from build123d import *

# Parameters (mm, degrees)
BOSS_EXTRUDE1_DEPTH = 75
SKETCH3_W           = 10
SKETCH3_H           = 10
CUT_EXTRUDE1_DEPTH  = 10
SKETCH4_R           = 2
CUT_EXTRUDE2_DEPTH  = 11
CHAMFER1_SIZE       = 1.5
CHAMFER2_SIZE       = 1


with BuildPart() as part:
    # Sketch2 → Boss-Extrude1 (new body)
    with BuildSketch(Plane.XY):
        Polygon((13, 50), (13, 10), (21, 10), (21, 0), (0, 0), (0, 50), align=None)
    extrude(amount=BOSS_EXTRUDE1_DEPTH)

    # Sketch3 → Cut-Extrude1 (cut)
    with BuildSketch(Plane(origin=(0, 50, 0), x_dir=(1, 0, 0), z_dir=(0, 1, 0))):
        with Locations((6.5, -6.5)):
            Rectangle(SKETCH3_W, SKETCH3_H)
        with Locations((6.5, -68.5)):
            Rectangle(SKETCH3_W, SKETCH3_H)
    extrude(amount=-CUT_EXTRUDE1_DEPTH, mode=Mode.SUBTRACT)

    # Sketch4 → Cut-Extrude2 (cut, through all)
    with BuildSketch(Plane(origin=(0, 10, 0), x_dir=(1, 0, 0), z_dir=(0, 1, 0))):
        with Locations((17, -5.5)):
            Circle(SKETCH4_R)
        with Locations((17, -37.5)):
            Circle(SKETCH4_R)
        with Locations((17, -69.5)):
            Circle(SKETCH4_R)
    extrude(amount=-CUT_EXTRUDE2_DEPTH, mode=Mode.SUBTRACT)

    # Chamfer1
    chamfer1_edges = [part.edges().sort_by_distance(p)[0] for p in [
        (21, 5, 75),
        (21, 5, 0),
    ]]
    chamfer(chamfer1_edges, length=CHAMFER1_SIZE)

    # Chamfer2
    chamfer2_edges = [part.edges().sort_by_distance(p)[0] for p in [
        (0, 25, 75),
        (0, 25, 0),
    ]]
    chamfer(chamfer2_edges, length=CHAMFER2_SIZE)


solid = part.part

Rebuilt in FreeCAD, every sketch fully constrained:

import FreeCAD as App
import Part
import Sketcher
Q = App.Units.Quantity


def edges_at(feature, points):
    """Names of the edges that pass closest to the given points."""
    edges = feature.Shape.Edges
    near = lambda p: min(range(len(edges)), key=lambda i: edges[i].distToShape(Part.Vertex(*p))[0])
    return sorted({f"Edge{near(p) + 1}" for p in points})

doc = App.newDocument("Part")
body = doc.addObject("PartDesign::Body", "Body")

sketch1 = body.newObject("Sketcher::SketchObject", "Sketch")
sketch1.AttachmentSupport = (doc.getObject("XY_Plane"), [""])
sketch1.MapMode = "FlatFace"
sketch1.addGeometry([
    Part.LineSegment(App.Vector(13, 10, 0), App.Vector(13, 50, 0)),
    Part.LineSegment(App.Vector(13, 50, 0), App.Vector(0, 50, 0)),
    Part.LineSegment(App.Vector(0, 50, 0), App.Vector(0, 0, 0)),
    Part.LineSegment(App.Vector(0, 0, 0), App.Vector(21, 0, 0)),
    Part.LineSegment(App.Vector(21, 0, 0), App.Vector(21, 10, 0)),
    Part.LineSegment(App.Vector(21, 10, 0), App.Vector(13, 10, 0)),
], False)
sketch1.addConstraint([
    Sketcher.Constraint("Coincident", 0, 2, 1, 1),
    Sketcher.Constraint("Coincident", 1, 2, 2, 1),
    Sketcher.Constraint("Coincident", 2, 2, 3, 1),
    Sketcher.Constraint("Coincident", 3, 2, 4, 1),
    Sketcher.Constraint("Coincident", 4, 2, 5, 1),
    Sketcher.Constraint("Coincident", 5, 2, 0, 1),
    Sketcher.Constraint("Vertical", 0),
    Sketcher.Constraint("Horizontal", 1),
    Sketcher.Constraint("Vertical", 2),
    Sketcher.Constraint("Horizontal", 3),
    Sketcher.Constraint("Vertical", 4),
    Sketcher.Constraint("Horizontal", 5),
    Sketcher.Constraint("Coincident", 2, 2, -1, 1),
    Sketcher.Constraint("DistanceX", 1, 2, 1, 1, Q("13 mm")),
    Sketcher.Constraint("DistanceX", 3, 1, 3, 2, Q("21 mm")),
    Sketcher.Constraint("DistanceY", 0, 1, 0, 2, Q("40 mm")),
    Sketcher.Constraint("DistanceY", 2, 2, 2, 1, Q("50 mm")),
])
pad1 = body.newObject("PartDesign::Pad", "Pad")
pad1.Profile = sketch1
pad1.Length = 75

sketch2 = body.newObject("Sketcher::SketchObject", "Sketch001")
sketch2.AttachmentSupport = (doc.getObject("XZ_Plane"), [""])
sketch2.MapMode = "FlatFace"
sketch2.AttachmentOffset = App.Placement(App.Vector(0, 0, -50), App.Rotation())
sketch2.addGeometry([
    Part.LineSegment(App.Vector(1.5, 1.5, 0), App.Vector(1.5, 11.5, 0)),
    Part.LineSegment(App.Vector(1.5, 11.5, 0), App.Vector(11.5, 11.5, 0)),
    Part.LineSegment(App.Vector(11.5, 11.5, 0), App.Vector(11.5, 1.5, 0)),
    Part.LineSegment(App.Vector(11.5, 1.5, 0), App.Vector(1.5, 1.5, 0)),
    Part.LineSegment(App.Vector(1.5, 63.5, 0), App.Vector(1.5, 73.5, 0)),
    Part.LineSegment(App.Vector(1.5, 73.5, 0), App.Vector(11.5, 73.5, 0)),
    Part.LineSegment(App.Vector(11.5, 73.5, 0), App.Vector(11.5, 63.5, 0)),
    Part.LineSegment(App.Vector(11.5, 63.5, 0), App.Vector(1.5, 63.5, 0)),
], False)
sketch2.addConstraint([
    Sketcher.Constraint("Coincident", 0, 2, 1, 1),
    Sketcher.Constraint("Coincident", 1, 2, 2, 1),
    Sketcher.Constraint("Coincident", 2, 2, 3, 1),
    Sketcher.Constraint("Coincident", 3, 2, 0, 1),
    Sketcher.Constraint("Coincident", 4, 2, 5, 1),
    Sketcher.Constraint("Coincident", 5, 2, 6, 1),
    Sketcher.Constraint("Coincident", 6, 2, 7, 1),
    Sketcher.Constraint("Coincident", 7, 2, 4, 1),
    Sketcher.Constraint("Vertical", 0),
    Sketcher.Constraint("Horizontal", 1),
    Sketcher.Constraint("Vertical", 2),
    Sketcher.Constraint("Horizontal", 3),
    Sketcher.Constraint("Vertical", 4),
    Sketcher.Constraint("Horizontal", 5),
    Sketcher.Constraint("Vertical", 6),
    Sketcher.Constraint("Horizontal", 7),
    Sketcher.Constraint("Vertical", 3, 2, 4, 2),
    Sketcher.Constraint("Vertical", 2, 2, 5, 2),
    Sketcher.Constraint("Equal", 7, 0),
    Sketcher.Constraint("Equal", 2, 4),
    Sketcher.Constraint("DistanceX", 1, 1, 1, 2, Q("10 mm")),
    Sketcher.Constraint("DistanceY", 0, 2, 4, 2, Q("62 mm")),
    Sketcher.Constraint("DistanceX", -1, 1, 0, 2, Q("1.5 mm")),
    Sketcher.Constraint("DistanceY", -1, 1, 0, 2, Q("11.5 mm")),
])
pocket1 = body.newObject("PartDesign::Pocket", "Pocket")
pocket1.Profile = sketch2
pocket1.Length = 10
pocket1.Reversed = True

sketch3 = body.newObject("Sketcher::SketchObject", "Sketch002")
sketch3.AttachmentSupport = (doc.getObject("XZ_Plane"), [""])
sketch3.MapMode = "FlatFace"
sketch3.AttachmentOffset = App.Placement(App.Vector(0, 0, -10), App.Rotation())
sketch3.addGeometry([
    Part.Circle(App.Vector(17, 5.5, 0), App.Vector(0, 0, 1), 2),
    Part.Circle(App.Vector(17, 37.5, 0), App.Vector(0, 0, 1), 2),
    Part.Circle(App.Vector(17, 69.5, 0), App.Vector(0, 0, 1), 2),
], False)
sketch3.addConstraint([
    Sketcher.Constraint("Equal", 0, 1),
    Sketcher.Constraint("Equal", 1, 2),
    Sketcher.Constraint("Vertical", 0, 3, 1, 3),
    Sketcher.Constraint("Vertical", 1, 3, 2, 3),
    Sketcher.Constraint("Diameter", 0, Q("4 mm")),
    Sketcher.Constraint("DistanceX", -1, 1, 0, 3, Q("17 mm")),
    Sketcher.Constraint("DistanceY", 0, 3, 1, 3, Q("32 mm")),
    Sketcher.Constraint("DistanceY", 1, 3, 2, 3, Q("32 mm")),
    Sketcher.Constraint("DistanceY", -1, 1, 0, 3, Q("5.5 mm")),
])
pocket2 = body.newObject("PartDesign::Pocket", "Pocket001")
pocket2.Profile = sketch3
pocket2.Type = "ThroughAll"
pocket2.Reversed = True
doc.recompute()

chamfer = body.newObject("PartDesign::Chamfer", "Chamfer")
chamfer.Base = (pocket2, edges_at(pocket2, [(21, 5, 75), (21, 5, 0)]))
chamfer.Size = 1.5
doc.recompute()

chamfer2 = body.newObject("PartDesign::Chamfer", "Chamfer001")
chamfer2.Base = (chamfer, edges_at(chamfer, [(0, 25, 75), (0, 25, 0)]))
chamfer2.Size = 1

doc.recompute()
